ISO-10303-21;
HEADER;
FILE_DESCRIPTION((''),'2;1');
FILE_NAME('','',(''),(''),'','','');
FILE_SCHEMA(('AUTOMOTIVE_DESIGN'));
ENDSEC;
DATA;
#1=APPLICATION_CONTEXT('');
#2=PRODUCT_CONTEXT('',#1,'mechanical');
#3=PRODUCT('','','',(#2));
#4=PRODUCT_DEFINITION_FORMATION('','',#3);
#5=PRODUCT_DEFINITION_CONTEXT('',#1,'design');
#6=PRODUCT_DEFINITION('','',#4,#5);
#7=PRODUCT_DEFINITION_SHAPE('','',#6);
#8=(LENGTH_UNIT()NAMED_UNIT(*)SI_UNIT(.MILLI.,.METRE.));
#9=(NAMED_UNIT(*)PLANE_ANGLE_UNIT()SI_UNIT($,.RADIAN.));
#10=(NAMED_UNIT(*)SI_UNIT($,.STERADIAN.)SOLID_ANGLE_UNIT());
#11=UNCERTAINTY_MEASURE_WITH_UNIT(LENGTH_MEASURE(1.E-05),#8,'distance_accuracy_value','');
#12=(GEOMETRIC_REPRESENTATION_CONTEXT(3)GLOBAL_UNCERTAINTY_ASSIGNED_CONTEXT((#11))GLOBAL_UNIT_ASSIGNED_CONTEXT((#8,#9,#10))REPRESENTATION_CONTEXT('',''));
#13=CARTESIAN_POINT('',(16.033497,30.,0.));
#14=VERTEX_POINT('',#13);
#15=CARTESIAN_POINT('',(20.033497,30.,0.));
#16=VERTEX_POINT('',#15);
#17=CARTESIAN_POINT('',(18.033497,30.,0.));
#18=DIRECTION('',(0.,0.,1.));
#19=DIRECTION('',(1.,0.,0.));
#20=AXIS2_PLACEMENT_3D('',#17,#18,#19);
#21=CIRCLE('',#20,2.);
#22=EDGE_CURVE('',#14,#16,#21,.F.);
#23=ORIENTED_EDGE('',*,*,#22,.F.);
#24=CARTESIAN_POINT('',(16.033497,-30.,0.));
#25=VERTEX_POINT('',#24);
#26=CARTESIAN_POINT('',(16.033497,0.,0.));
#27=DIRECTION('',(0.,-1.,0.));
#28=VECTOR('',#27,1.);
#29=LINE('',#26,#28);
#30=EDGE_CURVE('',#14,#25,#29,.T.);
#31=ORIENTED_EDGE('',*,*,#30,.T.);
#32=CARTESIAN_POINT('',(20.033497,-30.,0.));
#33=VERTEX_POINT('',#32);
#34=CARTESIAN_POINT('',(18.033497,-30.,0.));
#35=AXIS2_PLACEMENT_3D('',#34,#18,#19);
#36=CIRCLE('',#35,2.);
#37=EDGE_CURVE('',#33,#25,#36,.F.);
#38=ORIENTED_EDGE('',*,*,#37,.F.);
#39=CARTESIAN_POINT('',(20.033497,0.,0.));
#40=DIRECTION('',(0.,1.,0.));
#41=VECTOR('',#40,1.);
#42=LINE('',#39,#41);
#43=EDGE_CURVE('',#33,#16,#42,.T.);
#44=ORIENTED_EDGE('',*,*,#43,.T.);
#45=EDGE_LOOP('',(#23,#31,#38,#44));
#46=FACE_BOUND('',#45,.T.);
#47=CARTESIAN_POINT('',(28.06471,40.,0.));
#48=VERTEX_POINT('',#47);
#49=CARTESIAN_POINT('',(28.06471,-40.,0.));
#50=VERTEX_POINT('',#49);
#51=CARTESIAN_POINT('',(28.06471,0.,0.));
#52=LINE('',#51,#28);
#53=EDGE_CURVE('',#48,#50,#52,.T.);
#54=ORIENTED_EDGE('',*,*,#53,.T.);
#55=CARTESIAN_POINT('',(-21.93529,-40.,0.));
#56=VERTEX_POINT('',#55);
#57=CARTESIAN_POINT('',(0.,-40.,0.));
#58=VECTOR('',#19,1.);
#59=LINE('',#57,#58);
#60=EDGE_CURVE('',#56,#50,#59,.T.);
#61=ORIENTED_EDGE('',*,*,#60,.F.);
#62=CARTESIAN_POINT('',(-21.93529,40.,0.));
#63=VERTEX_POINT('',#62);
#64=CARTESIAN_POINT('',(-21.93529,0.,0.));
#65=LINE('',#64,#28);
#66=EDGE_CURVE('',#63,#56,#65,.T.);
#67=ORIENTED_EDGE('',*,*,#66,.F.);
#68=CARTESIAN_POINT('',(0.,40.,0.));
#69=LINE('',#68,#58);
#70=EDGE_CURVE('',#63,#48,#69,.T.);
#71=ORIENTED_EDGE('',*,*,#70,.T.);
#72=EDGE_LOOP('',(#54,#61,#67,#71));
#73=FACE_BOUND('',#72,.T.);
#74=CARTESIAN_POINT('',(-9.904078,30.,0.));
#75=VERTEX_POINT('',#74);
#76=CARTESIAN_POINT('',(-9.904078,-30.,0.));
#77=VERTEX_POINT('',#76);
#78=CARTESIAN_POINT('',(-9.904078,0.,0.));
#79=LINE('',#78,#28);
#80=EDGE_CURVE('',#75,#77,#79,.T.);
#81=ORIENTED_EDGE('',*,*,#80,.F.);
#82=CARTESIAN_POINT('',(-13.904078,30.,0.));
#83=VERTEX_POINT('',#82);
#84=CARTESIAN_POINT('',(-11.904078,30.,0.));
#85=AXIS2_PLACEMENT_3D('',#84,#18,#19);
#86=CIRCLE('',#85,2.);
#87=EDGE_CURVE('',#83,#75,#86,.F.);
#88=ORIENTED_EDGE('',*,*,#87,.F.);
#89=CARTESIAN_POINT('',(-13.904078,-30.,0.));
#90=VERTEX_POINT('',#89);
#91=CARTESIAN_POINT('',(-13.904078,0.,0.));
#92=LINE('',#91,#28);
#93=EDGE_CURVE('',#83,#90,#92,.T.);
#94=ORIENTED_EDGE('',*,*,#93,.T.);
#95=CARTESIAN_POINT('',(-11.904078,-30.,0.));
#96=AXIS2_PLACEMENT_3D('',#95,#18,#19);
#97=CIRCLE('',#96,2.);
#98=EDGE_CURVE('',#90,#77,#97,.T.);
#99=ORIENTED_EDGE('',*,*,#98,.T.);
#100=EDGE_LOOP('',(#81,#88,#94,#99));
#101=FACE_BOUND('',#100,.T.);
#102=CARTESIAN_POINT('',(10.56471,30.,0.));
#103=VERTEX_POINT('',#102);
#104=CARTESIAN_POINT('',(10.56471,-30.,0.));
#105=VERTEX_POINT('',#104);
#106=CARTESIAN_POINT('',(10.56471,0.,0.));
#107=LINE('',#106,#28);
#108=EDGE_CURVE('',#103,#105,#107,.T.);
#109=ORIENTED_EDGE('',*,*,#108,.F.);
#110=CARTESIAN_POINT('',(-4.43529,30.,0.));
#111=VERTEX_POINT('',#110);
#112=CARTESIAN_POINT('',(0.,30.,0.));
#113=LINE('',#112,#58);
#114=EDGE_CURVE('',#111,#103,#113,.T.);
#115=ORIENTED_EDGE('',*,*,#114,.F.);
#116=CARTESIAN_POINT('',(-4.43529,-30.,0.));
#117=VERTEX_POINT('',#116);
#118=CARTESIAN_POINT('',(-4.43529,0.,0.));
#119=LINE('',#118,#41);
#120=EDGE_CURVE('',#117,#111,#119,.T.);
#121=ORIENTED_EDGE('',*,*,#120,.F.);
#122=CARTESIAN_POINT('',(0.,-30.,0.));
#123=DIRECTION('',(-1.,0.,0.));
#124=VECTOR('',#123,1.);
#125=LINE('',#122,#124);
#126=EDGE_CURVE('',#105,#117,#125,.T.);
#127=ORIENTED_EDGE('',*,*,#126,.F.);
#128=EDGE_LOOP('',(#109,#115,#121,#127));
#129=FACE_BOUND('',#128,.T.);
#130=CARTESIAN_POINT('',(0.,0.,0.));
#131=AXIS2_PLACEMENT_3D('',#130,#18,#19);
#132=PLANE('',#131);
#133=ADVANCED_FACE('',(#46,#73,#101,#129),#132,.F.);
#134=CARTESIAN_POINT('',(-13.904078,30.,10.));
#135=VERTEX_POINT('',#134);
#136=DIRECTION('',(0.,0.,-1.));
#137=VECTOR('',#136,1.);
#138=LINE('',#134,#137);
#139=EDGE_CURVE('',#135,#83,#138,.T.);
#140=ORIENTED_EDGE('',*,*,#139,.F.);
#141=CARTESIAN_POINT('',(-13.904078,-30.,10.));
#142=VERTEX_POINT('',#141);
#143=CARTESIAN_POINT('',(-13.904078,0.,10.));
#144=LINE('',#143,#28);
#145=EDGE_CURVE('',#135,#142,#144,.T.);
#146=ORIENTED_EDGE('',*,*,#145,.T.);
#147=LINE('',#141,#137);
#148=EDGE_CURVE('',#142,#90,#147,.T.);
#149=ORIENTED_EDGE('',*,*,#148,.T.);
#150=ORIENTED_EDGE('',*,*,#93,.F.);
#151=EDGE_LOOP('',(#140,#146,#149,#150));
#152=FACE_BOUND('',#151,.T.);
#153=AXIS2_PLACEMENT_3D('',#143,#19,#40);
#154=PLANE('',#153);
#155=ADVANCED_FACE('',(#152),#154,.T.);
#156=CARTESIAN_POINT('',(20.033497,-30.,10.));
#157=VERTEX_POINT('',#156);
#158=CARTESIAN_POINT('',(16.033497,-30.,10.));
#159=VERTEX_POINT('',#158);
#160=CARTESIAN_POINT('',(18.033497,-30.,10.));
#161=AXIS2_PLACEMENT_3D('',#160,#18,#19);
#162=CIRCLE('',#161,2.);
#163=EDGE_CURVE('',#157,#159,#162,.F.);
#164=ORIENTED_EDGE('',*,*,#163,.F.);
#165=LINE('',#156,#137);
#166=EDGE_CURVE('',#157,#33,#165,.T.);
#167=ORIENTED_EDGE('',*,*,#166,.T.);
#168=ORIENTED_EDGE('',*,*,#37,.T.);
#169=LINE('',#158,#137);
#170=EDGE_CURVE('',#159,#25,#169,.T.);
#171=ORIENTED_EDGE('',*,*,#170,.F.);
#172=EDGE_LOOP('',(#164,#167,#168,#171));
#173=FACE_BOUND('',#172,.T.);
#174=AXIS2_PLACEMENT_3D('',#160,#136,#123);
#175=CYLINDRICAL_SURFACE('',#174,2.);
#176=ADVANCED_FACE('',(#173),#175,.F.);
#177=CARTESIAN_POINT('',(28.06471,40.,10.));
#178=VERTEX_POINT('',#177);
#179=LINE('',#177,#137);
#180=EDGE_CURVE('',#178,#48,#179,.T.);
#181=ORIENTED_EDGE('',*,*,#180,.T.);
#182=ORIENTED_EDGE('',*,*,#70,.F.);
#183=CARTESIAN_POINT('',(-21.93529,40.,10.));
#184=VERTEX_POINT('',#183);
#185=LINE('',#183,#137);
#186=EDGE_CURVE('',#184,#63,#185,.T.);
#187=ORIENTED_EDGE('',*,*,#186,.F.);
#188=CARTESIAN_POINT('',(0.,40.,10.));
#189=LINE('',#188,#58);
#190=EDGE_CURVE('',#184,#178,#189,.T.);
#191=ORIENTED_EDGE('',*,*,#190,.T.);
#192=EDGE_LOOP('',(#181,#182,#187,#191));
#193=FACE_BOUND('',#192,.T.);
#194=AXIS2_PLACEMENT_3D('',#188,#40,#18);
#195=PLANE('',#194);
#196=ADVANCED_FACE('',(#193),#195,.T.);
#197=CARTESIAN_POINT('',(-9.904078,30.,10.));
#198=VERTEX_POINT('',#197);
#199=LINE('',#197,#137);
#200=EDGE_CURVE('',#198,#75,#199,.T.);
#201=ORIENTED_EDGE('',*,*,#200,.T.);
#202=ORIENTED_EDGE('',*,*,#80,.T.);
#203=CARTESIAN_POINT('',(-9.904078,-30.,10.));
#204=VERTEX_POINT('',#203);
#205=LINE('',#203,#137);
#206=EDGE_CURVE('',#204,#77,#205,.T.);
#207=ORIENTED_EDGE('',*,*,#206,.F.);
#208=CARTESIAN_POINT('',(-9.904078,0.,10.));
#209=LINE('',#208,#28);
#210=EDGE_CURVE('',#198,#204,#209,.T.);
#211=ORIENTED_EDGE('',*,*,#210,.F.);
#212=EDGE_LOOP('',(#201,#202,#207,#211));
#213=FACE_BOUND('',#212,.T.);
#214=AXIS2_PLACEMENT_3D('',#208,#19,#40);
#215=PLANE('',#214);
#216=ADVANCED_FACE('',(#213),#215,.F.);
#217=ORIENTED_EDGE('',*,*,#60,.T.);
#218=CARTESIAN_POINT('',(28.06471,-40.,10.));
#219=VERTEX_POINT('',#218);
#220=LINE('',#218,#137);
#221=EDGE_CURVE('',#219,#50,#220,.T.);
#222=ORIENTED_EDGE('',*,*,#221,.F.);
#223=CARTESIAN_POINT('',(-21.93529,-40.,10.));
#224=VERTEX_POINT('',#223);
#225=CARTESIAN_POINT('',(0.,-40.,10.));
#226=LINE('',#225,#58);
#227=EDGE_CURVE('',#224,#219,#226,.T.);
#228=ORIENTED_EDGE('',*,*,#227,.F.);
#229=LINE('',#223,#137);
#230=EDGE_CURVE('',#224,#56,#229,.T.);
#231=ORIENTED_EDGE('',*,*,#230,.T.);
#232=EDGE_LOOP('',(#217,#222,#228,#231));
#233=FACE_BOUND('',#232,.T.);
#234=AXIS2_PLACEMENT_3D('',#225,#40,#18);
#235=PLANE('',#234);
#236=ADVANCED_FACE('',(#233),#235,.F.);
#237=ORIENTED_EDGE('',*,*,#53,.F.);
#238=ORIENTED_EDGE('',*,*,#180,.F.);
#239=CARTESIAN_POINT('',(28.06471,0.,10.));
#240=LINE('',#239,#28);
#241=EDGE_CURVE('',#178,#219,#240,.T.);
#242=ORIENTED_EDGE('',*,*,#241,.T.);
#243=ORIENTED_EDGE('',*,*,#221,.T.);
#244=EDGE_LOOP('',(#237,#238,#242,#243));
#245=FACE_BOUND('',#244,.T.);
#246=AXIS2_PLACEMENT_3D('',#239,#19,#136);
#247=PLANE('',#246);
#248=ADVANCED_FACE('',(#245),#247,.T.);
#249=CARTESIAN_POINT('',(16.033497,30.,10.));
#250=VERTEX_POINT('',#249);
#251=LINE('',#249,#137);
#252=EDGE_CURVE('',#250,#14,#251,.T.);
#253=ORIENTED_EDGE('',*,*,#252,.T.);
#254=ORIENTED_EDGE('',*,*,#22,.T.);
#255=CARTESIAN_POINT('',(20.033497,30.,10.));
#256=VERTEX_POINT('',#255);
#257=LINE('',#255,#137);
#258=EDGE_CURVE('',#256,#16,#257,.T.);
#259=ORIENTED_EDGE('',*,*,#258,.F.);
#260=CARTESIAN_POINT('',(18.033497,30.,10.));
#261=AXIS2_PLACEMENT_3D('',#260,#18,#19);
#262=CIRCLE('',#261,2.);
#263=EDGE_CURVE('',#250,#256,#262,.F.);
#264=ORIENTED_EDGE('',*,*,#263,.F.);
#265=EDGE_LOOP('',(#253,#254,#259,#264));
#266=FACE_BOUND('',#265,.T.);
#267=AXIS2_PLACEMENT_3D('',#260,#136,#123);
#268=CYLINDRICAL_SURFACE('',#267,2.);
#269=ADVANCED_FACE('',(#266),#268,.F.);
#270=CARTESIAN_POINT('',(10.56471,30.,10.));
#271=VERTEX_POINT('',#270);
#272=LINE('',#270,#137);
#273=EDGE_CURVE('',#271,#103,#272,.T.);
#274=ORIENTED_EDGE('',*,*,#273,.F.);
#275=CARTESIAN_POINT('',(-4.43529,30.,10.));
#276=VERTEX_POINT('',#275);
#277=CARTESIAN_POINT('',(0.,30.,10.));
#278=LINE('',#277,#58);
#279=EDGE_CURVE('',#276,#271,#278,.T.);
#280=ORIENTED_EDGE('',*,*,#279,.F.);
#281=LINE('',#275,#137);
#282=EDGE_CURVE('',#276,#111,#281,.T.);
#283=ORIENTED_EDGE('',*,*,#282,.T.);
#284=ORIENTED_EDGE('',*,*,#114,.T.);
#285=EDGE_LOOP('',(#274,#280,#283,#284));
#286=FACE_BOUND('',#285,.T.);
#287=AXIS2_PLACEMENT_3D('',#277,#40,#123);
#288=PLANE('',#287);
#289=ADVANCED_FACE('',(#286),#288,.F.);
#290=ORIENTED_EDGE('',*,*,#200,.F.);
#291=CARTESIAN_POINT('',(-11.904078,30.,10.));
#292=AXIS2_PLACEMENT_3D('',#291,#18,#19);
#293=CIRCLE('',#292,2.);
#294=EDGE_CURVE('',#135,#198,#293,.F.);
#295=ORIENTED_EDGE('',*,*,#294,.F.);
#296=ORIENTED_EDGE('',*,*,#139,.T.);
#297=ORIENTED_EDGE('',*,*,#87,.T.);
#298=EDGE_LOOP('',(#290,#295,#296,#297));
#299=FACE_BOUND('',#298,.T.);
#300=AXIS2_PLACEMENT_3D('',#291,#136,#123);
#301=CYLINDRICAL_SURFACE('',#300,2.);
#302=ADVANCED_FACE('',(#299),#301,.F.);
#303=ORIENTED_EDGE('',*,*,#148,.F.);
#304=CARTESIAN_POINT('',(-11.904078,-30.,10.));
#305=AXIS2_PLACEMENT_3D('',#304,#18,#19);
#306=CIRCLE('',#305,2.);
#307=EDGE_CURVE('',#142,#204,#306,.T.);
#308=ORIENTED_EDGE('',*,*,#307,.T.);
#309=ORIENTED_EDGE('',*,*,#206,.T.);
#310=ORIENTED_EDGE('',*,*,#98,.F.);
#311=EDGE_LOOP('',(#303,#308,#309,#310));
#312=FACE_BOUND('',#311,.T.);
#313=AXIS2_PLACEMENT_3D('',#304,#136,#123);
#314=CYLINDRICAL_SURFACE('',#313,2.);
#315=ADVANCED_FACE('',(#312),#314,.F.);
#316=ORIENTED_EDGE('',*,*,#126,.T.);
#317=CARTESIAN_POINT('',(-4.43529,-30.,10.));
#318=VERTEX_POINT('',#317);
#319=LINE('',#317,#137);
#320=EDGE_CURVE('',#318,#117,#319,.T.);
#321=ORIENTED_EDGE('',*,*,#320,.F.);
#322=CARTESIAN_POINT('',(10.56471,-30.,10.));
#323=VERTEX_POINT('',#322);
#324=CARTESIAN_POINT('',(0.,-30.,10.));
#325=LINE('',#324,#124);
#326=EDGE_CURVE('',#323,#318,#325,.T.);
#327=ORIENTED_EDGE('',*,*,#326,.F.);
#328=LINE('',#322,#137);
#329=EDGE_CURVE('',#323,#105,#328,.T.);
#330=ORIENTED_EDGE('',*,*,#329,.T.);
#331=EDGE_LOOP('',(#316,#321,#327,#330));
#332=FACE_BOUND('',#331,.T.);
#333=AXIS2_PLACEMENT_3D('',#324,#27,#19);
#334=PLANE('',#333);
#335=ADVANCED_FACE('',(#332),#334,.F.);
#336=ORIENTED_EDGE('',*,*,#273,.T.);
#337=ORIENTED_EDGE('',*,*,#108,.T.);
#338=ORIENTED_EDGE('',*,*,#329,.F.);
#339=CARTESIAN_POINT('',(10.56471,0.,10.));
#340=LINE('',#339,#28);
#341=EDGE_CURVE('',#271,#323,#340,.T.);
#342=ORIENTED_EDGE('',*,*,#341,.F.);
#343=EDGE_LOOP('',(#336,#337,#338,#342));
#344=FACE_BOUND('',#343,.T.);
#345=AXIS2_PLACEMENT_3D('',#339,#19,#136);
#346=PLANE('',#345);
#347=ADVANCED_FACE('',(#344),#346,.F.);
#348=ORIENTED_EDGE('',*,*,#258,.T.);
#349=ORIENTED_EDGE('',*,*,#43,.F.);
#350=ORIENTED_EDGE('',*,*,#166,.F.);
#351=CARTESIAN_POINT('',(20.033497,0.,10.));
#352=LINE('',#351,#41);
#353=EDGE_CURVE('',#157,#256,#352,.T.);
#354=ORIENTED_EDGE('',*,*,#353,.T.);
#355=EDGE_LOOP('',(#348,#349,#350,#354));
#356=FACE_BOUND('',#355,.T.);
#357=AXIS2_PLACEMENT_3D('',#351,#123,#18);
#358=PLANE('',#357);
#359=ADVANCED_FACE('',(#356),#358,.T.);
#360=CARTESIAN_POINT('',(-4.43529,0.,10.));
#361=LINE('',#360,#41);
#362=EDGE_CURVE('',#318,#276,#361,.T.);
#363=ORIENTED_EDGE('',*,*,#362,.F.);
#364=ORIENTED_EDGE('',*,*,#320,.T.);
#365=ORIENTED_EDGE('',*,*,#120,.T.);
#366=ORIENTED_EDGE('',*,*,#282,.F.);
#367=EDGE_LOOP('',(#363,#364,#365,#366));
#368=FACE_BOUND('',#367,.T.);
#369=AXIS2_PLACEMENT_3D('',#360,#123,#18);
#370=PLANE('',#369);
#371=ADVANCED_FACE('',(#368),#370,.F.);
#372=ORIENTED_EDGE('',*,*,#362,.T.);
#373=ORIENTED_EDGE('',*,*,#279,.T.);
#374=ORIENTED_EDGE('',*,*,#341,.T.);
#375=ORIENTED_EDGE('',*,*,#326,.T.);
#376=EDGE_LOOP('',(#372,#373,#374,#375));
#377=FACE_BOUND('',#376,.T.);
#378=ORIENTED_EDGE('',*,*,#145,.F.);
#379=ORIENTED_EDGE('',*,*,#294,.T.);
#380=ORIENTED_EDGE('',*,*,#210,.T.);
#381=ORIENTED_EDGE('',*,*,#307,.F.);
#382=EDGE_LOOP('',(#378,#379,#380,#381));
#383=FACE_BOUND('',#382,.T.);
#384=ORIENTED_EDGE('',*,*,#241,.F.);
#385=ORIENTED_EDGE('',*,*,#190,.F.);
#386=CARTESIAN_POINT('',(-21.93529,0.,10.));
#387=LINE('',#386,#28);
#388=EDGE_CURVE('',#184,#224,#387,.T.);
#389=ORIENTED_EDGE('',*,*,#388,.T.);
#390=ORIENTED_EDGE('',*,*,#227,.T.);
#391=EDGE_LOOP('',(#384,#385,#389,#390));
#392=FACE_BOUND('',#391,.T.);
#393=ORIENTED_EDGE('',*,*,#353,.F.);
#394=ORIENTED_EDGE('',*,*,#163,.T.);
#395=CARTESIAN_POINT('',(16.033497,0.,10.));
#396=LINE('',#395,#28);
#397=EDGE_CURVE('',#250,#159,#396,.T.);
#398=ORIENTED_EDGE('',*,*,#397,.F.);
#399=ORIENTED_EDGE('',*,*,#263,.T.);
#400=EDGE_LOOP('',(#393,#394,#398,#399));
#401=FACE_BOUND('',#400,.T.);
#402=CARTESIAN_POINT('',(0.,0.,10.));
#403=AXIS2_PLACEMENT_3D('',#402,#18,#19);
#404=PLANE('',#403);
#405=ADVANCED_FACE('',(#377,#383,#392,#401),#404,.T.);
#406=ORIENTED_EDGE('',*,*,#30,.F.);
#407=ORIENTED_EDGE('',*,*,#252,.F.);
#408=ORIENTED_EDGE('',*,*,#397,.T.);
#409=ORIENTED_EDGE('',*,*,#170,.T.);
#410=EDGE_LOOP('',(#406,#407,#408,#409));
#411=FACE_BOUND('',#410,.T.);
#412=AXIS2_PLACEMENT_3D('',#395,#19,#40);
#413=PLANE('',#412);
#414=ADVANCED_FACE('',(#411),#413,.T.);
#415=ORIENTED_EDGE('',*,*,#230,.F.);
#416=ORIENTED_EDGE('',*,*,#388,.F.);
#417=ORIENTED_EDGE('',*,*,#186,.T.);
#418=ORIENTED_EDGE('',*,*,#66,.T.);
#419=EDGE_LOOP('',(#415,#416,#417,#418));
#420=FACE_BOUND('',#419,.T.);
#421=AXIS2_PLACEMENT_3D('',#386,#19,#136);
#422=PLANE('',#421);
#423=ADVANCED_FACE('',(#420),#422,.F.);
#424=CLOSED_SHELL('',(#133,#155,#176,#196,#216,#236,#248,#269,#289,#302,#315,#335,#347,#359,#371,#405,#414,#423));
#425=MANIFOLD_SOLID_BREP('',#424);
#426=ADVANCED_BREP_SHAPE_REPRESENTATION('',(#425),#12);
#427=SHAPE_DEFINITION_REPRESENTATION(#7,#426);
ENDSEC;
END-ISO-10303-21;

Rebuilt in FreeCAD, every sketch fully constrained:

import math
import FreeCAD as App
import Part
import Sketcher

V = App.Vector


def add_polygon(sketch, points):
    """Adds a closed chain of lines whose ends are joined by coincident constraints."""
    first, n = sketch.GeometryCount, len(points)
    for a, b in zip(points, points[1:] + points[:1]):
        sketch.addGeometry(Part.LineSegment(App.Vector(*a, 0), App.Vector(*b, 0)), False)
    for i in range(n):
        sketch.addConstraint(Sketcher.Constraint("Coincident", first + i, 2, first + (i + 1) % n, 1))

doc = App.newDocument("Part")
body = doc.addObject("PartDesign::Body", "Body")

# Sketch on XY plane
sketch1 = body.newObject("Sketcher::SketchObject", "Sketch")
sketch1.AttachmentSupport = (doc.getObject("XY_Plane"), [""])
sketch1.MapMode = "FlatFace"
add_polygon(sketch1, [(-21.9, 40), (-21.9, -40), (28.1, -40), (28.1, 40)])  # lines 0-3
sketch1.addGeometry(Part.ArcOfCircle(Part.Circle(V(-11.9, -30, 0), V(0, 0, 1), 2), math.radians(180), math.radians(360)), False)  # 4
sketch1.addGeometry(Part.LineSegment(V(-13.9, -30, 0), V(-13.9, 30, 0)), False)  # 5
sketch1.addGeometry(Part.ArcOfCircle(Part.Circle(V(-11.9, 30, 0), V(0, 0, 1), 2), math.radians(0), math.radians(180)), False)  # 6
sketch1.addGeometry(Part.LineSegment(V(-9.9, 30, 0), V(-9.9, -30, 0)), False)  # 7
add_polygon(sketch1, [(10.6, -30), (-4.4, -30), (-4.4, 30), (10.6, 30)])  # lines 8-11
sketch1.addGeometry(Part.ArcOfCircle(Part.Circle(V(18, -30, 0), V(0, 0, 1), 2), math.radians(180), math.radians(360)), False)  # 12
sketch1.addGeometry(Part.LineSegment(V(16, -30, 0), V(16, 30, 0)), False)  # 13
sketch1.addGeometry(Part.ArcOfCircle(Part.Circle(V(18, 30, 0), V(0, 0, 1), 2), math.radians(0), math.radians(180)), False)  # 14
sketch1.addGeometry(Part.LineSegment(V(20, 30, 0), V(20, -30, 0)), False)  # 15
sketch1.addConstraint(Sketcher.Constraint("Tangent", 4, 1, 5, 1))
sketch1.addConstraint(Sketcher.Constraint("Tangent", 5, 2, 6, 2))
sketch1.addConstraint(Sketcher.Constraint("Tangent", 6, 1, 7, 1))
sketch1.addConstraint(Sketcher.Constraint("Tangent", 7, 2, 4, 2))
sketch1.addConstraint(Sketcher.Constraint("Tangent", 12, 1, 13, 1))
sketch1.addConstraint(Sketcher.Constraint("Tangent", 13, 2, 14, 2))
sketch1.addConstraint(Sketcher.Constraint("Tangent", 14, 1, 15, 1))
sketch1.addConstraint(Sketcher.Constraint("Tangent", 15, 2, 12, 2))
sketch1.addConstraint(Sketcher.Constraint("Vertical", 0))
sketch1.addConstraint(Sketcher.Constraint("Horizontal", 1))
sketch1.addConstraint(Sketcher.Constraint("Vertical", 2))
sketch1.addConstraint(Sketcher.Constraint("Horizontal", 3))
sketch1.addConstraint(Sketcher.Constraint("Vertical", 5))
sketch1.addConstraint(Sketcher.Constraint("Vertical", 7))
sketch1.addConstraint(Sketcher.Constraint("Horizontal", 8))
sketch1.addConstraint(Sketcher.Constraint("Vertical", 9))
sketch1.addConstraint(Sketcher.Constraint("Horizontal", 10))
sketch1.addConstraint(Sketcher.Constraint("Vertical", 11))
sketch1.addConstraint(Sketcher.Constraint("Vertical", 13))
sketch1.addConstraint(Sketcher.Constraint("Vertical", 15))
sketch1.addConstraint(Sketcher.Constraint("Equal", 6, 12))
sketch1.addConstraint(Sketcher.Constraint("Horizontal", 4, 3, 12, 3))
sketch1.addConstraint(Sketcher.Constraint("Horizontal", 6, 3, 14, 3))
sketch1.addConstraint(Sketcher.Constraint("Horizontal", 7, 2, 8, 2))
sketch1.addConstraint(Sketcher.Constraint("Horizontal", 6, 1, 9, 2))
sketch1.addConstraint(Sketcher.Constraint("Radius", 4, 2.0))
sketch1.addConstraint(Sketcher.Constraint("DistanceX", 1, 1, 1, 2, 50.0))
sketch1.addConstraint(Sketcher.Constraint("DistanceX", 8, 2, 8, 1, 15.0))
sketch1.addConstraint(Sketcher.Constraint("DistanceY", 0, 2, 0, 1, 80.0))
sketch1.addConstraint(Sketcher.Constraint("DistanceY", 5, 1, 5, 2, 60.0))
sketch1.addConstraint(Sketcher.Constraint("DistanceY", 4, 3, -1, 1, 30.0))
sketch1.addConstraint(Sketcher.Constraint("DistanceY", 0, 2, -1, 1, 40.0))
sketch1.addConstraint(Sketcher.Constraint("DistanceX", 0, 2, 8, 2, 17.5))
sketch1.addConstraint(Sketcher.Constraint("DistanceX", 0, 2, -1, 1, 21.93529))
sketch1.addConstraint(Sketcher.Constraint("DistanceX", 4, 3, -1, 1, 11.904078))
sketch1.addConstraint(Sketcher.Constraint("DistanceX", -1, 1, 12, 3, 18.033497))
pad1 = body.newObject("PartDesign::Pad", "Pad")
pad1.Profile = sketch1
pad1.Length = 10

doc.recompute()
